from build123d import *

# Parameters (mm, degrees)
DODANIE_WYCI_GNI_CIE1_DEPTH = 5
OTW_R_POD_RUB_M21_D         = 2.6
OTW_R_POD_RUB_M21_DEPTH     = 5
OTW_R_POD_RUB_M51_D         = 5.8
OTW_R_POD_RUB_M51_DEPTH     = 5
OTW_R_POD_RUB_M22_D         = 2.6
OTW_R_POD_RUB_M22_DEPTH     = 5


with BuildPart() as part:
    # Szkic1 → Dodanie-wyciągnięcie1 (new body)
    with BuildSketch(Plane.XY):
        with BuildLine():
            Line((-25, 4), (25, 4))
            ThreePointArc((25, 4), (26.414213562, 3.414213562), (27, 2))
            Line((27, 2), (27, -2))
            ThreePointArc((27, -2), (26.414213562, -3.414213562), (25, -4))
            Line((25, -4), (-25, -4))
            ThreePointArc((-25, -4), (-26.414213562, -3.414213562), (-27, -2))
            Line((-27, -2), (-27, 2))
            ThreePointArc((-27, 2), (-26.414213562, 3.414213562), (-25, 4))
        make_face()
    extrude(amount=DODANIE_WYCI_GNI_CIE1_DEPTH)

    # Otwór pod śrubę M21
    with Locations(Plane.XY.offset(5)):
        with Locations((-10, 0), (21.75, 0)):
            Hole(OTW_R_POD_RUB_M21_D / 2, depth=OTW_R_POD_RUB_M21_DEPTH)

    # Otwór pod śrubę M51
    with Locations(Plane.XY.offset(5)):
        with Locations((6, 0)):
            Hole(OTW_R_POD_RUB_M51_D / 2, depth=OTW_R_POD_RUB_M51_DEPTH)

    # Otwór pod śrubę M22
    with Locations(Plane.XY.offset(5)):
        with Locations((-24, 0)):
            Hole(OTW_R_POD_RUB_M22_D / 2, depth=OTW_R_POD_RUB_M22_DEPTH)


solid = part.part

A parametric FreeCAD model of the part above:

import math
import FreeCAD as App
import Part
import Sketcher
from FreeCAD import Vector

doc = App.newDocument("Part")
body = doc.addObject("PartDesign::Body", "Body")

# Sketch on XY plane
sketch1 = doc.addObject("Sketcher::SketchObject", "Sketch")
body.addObject(sketch1)
sketch1.AttachmentSupport = (doc.XY_Plane, [""])
sketch1.MapMode = "FlatFace"
sketch1.addGeometry([
    Part.LineSegment(Vector(25, 4, 0), Vector(-25, 4, 0)),  # 0
    Part.ArcOfCircle(Part.Circle(Vector(-25, 2, 0), Vector(0, 0, 1), 2), math.radians(90), math.radians(180)),  # 1
    Part.LineSegment(Vector(-27, 2, 0), Vector(-27, -2, 0)),  # 2
    Part.ArcOfCircle(Part.Circle(Vector(-25, -2, 0), Vector(0, 0, 1), 2), math.radians(-180), math.radians(-90)),  # 3
    Part.LineSegment(Vector(-25, -4, 0), Vector(25, -4, 0)),  # 4
    Part.ArcOfCircle(Part.Circle(Vector(25, -2, 0), Vector(0, 0, 1), 2), math.radians(-90), math.radians(0)),  # 5
    Part.LineSegment(Vector(27, -2, 0), Vector(27, 2, 0)),  # 6
    Part.ArcOfCircle(Part.Circle(Vector(25, 2, 0), Vector(0, 0, 1), 2), math.radians(0), math.radians(90)),  # 7
], False)
sketch1.addConstraint([
    Sketcher.Constraint("Tangent", 0, 2, 1, 1),
    Sketcher.Constraint("Tangent", 1, 2, 2, 1),
    Sketcher.Constraint("Tangent", 2, 2, 3, 1),
    Sketcher.Constraint("Tangent", 3, 2, 4, 1),
    Sketcher.Constraint("Tangent", 4, 2, 5, 1),
    Sketcher.Constraint("Tangent", 5, 2, 6, 1),
    Sketcher.Constraint("Tangent", 6, 2, 7, 1),
    Sketcher.Constraint("Tangent", 7, 2, 0, 1),
    Sketcher.Constraint("Horizontal", 0),
    Sketcher.Constraint("Vertical", 2),
    Sketcher.Constraint("Horizontal", 4),
    Sketcher.Constraint("Vertical", 6),
    Sketcher.Constraint("Equal", 1, 3),
    Sketcher.Constraint("Equal", 3, 5),
    Sketcher.Constraint("Equal", 5, 7),
    Sketcher.Constraint("Symmetric", 1, 3, 5, 3, -1, 1),
    Sketcher.Constraint("Radius", 1, 2.0),
    Sketcher.Constraint("DistanceX", 0, 2, 0, 1, 50.0),
    Sketcher.Constraint("DistanceY", 2, 2, 2, 1, 4.0),
])
pad1 = doc.addObject("PartDesign::Pad", "Pad")
body.addObject(pad1)
pad1.Profile = sketch1
pad1.Length = 5

# Sketch on XY plane
sketch2 = doc.addObject("Sketcher::SketchObject", "Sketch001")
body.addObject(sketch2)
sketch2.AttachmentSupport = (doc.XY_Plane, [""])
sketch2.MapMode = "FlatFace"
sketch2.AttachmentOffset = App.Placement(Vector(0, 0, 5), App.Rotation())
sketch2.addGeometry([
    Part.Circle(Vector(-10, 0, 0), Vector(0, 0, 1), 1.3),
    Part.Circle(Vector(21.8, 0, 0), Vector(0, 0, 1), 1.3),
], False)
sketch2.addConstraint([
    Sketcher.Constraint("Equal", 0, 1),
    Sketcher.Constraint("PointOnObject", 0, 3, -1),
    Sketcher.Constraint("PointOnObject", 1, 3, -1),
    Sketcher.Constraint("Diameter", 0, 2.6),
    Sketcher.Constraint("DistanceX", 0, 3, -1, 1, 10.0),
    Sketcher.Constraint("DistanceX", -1, 1, 1, 3, 21.75),
])
doc.recompute()
hole = doc.addObject("PartDesign::Hole", "Hole")
body.addObject(hole)
hole.Profile = sketch2
hole.ThreadType = "None"
hole.Diameter = 2.6
hole.DepthType = "Dimension"
hole.Depth = 5
hole.DrillPoint = "Flat"

# Sketch on XY plane
sketch3 = doc.addObject("Sketcher::SketchObject", "Sketch002")
body.addObject(sketch3)
sketch3.AttachmentSupport = (doc.XY_Plane, [""])
sketch3.MapMode = "FlatFace"
sketch3.AttachmentOffset = App.Placement(Vector(0, 0, 5), App.Rotation())
sketch3.addGeometry(Part.Circle(Vector(6, 0, 0), Vector(0, 0, 1), 2.9), False)
sketch3.addConstraint([
    Sketcher.Constraint("PointOnObject", 0, 3, -1),
    Sketcher.Constraint("Diameter", 0, 5.8),
    Sketcher.Constraint("DistanceX", -1, 1, 0, 3, 6.0),
])
doc.recompute()
hole2 = doc.addObject("PartDesign::Hole", "Hole001")
body.addObject(hole2)
hole2.Profile = sketch3
hole2.ThreadType = "None"
hole2.Diameter = 5.8
hole2.DepthType = "Dimension"
hole2.Depth = 5
hole2.DrillPoint = "Flat"

# Sketch on XY plane
sketch4 = doc.addObject("Sketcher::SketchObject", "Sketch003")
body.addObject(sketch4)
sketch4.AttachmentSupport = (doc.XY_Plane, [""])
sketch4.MapMode = "FlatFace"
sketch4.AttachmentOffset = App.Placement(Vector(0, 0, 5), App.Rotation())
sketch4.addGeometry(Part.Circle(Vector(-24, 0, 0), Vector(0, 0, 1), 1.3), False)
sketch4.addConstraint([
    Sketcher.Constraint("PointOnObject", 0, 3, -1),
    Sketcher.Constraint("Diameter", 0, 2.6),
    Sketcher.Constraint("DistanceX", 0, 3, -1, 1, 24.0),
])
doc.recompute()
hole3 = doc.addObject("PartDesign::Hole", "Hole002")
body.addObject(hole3)
hole3.Profile = sketch4
hole3.ThreadType = "None"
hole3.Diameter = 2.6
hole3.DepthType = "Dimension"
hole3.Depth = 5
hole3.DrillPoint = "Flat"

doc.recompute()
